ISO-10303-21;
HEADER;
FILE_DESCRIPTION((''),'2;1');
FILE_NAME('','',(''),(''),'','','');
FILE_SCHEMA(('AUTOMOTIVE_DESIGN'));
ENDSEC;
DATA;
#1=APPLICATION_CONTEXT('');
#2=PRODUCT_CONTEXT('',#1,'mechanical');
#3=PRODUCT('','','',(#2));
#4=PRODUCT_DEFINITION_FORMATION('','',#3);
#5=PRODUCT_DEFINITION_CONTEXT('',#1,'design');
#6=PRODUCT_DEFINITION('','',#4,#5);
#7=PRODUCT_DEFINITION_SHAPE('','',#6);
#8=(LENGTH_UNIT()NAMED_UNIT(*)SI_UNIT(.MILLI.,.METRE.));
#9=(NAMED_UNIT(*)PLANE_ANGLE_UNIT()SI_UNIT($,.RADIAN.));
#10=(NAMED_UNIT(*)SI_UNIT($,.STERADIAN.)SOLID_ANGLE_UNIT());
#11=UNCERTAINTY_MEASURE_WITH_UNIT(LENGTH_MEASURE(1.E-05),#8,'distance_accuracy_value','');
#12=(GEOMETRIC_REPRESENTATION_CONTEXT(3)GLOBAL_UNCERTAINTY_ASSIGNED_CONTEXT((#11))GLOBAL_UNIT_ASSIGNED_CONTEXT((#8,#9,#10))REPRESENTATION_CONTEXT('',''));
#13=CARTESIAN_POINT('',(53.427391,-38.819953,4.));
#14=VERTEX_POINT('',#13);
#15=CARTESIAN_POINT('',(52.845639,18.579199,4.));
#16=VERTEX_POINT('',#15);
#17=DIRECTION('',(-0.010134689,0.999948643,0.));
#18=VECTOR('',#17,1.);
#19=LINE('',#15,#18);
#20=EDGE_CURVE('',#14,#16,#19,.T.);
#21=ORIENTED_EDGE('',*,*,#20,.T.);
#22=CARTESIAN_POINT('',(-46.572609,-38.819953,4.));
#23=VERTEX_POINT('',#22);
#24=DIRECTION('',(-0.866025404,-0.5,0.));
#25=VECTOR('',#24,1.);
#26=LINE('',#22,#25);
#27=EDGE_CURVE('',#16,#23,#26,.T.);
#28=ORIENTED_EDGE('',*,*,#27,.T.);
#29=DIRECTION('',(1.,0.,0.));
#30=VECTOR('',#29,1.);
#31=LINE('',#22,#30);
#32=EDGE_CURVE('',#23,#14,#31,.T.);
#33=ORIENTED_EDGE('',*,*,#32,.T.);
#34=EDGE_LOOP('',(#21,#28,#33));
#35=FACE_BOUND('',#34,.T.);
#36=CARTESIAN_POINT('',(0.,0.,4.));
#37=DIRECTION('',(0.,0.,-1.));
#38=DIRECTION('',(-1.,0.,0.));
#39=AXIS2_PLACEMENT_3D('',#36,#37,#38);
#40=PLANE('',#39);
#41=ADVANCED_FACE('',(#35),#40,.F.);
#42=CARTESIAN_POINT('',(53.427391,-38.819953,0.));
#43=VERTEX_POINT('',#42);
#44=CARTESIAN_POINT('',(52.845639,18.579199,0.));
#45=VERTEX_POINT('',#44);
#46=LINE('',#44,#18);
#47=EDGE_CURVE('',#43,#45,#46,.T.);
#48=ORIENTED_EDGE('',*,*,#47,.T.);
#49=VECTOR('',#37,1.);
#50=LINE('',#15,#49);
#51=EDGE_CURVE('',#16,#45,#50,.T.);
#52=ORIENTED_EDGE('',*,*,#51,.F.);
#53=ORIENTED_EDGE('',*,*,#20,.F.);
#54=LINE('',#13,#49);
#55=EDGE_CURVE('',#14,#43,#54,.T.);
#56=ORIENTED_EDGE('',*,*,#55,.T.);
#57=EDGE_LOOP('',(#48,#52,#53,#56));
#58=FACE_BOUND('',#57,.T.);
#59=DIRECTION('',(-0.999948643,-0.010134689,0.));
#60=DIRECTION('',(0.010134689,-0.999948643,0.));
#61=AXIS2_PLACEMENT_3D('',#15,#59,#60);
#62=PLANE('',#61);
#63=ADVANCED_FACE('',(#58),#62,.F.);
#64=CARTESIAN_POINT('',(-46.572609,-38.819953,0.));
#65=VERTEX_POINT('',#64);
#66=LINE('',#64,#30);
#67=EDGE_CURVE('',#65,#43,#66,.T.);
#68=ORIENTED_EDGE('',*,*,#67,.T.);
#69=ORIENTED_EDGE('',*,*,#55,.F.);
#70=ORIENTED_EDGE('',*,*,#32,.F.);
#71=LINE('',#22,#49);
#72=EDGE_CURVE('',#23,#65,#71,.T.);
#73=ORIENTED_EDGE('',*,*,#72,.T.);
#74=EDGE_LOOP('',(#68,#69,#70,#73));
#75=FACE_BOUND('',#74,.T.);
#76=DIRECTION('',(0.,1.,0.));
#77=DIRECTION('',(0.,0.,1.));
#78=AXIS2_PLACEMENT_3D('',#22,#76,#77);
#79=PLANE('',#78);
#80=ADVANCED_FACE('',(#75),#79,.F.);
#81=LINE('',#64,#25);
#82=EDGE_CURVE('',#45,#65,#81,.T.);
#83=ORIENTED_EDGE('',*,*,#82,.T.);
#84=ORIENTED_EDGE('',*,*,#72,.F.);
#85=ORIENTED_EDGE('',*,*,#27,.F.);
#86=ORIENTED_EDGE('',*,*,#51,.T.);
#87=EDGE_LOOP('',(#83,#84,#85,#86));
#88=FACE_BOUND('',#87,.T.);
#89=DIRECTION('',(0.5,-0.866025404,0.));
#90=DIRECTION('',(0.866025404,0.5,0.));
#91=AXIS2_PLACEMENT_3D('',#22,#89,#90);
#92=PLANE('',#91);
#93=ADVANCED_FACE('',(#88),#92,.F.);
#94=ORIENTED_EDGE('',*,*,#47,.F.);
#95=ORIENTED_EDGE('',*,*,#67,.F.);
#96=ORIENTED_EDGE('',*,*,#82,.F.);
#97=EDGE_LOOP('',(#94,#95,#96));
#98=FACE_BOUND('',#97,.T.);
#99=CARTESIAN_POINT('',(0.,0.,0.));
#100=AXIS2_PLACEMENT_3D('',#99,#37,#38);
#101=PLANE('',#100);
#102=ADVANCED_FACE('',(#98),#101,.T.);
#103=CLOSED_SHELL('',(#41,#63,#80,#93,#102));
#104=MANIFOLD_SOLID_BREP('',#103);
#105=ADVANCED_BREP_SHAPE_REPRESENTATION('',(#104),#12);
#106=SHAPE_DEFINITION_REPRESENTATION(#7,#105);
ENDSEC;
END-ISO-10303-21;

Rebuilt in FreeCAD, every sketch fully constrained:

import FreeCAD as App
import Part
import Sketcher
from FreeCAD import Vector
Q = App.Units.Quantity

doc = App.newDocument("Part")
body = doc.addObject("PartDesign::Body", "Body")

# Sketch on XY plane
sketch1 = body.newObject("Sketcher::SketchObject", "Sketch")
sketch1.AttachmentSupport = (doc.getObject("XY_Plane"), [""])
sketch1.MapMode = "FlatFace"
sketch1.addGeometry(Part.LineSegment(Vector(-47, -39, 0), Vector(53, -39, 0)), False)
sketch1.addGeometry(Part.LineSegment(Vector(53, -39, 0), Vector(53, 19, 0)), False)
sketch1.addGeometry(Part.LineSegment(Vector(53, 19, 0), Vector(-47, -39, 0)), False)
sketch1.addConstraint(Sketcher.Constraint("Coincident", 0, 2, 1, 1))
sketch1.addConstraint(Sketcher.Constraint("Coincident", 1, 2, 2, 1))
sketch1.addConstraint(Sketcher.Constraint("Coincident", 2, 2, 0, 1))
sketch1.addConstraint(Sketcher.Constraint("Horizontal", 0))
sketch1.addConstraint(Sketcher.Constraint("DistanceX", 0, 1, 0, 2, Q("100 mm")))
sketch1.addConstraint(Sketcher.Constraint("Angle", 2, Q("-150 deg")))
sketch1.addConstraint(Sketcher.Constraint("Distance", 1, Q("57.4021 mm")))
sketch1.addConstraint(Sketcher.Constraint("DistanceY", -1, 1, 1, 2, Q("18.579199 mm")))
sketch1.addConstraint(Sketcher.Constraint("DistanceX", -1, 1, 0, 2, Q("53.427391 mm")))
pad1 = body.newObject("PartDesign::Pad", "Pad")
pad1.Profile = sketch1
pad1.Length = 4

doc.recompute()
